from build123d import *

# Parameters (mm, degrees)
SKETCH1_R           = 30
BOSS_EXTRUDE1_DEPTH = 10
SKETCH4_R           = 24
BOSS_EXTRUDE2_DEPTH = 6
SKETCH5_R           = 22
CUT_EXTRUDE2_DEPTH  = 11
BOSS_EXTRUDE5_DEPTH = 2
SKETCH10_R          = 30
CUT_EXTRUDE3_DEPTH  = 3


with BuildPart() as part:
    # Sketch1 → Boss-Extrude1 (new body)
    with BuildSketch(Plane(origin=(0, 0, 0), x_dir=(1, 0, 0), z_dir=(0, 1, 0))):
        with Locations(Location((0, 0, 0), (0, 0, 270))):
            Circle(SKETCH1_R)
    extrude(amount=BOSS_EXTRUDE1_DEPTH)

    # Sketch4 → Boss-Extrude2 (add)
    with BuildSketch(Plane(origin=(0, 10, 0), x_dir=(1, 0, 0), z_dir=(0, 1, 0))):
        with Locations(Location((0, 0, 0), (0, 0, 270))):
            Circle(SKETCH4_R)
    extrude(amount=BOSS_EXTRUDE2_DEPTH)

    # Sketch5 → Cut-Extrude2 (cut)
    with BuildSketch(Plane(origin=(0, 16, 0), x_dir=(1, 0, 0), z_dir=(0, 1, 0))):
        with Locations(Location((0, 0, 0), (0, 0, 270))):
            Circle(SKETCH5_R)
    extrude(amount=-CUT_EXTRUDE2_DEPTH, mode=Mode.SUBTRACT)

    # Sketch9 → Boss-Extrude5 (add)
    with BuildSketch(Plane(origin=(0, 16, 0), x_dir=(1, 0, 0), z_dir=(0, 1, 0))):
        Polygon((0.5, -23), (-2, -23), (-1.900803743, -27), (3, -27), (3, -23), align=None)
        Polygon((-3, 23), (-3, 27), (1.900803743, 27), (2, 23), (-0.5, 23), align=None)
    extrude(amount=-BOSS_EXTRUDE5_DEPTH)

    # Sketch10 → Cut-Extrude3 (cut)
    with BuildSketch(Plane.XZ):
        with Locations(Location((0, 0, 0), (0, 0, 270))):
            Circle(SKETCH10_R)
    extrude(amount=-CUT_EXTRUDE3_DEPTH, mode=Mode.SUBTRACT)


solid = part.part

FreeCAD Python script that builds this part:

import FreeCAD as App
import Part
import Sketcher

doc = App.newDocument("Part")
body = doc.addObject("PartDesign::Body", "Body")

# Sketch on XZ plane
sketch1 = body.newObject("Sketcher::SketchObject", "Sketch")
sketch1.AttachmentSupport = (doc.getObject("XZ_Plane"), [""])
sketch1.MapMode = "FlatFace"
sketch1.addGeometry(Part.Circle(App.Vector(0, 0, 0), App.Vector(0, 0, 1), 30), False)
sketch1.addConstraint(Sketcher.Constraint("Coincident", 0, 3, -1, 1))
sketch1.addConstraint(Sketcher.Constraint("Diameter", 0, 60.0))
pad1 = body.newObject("PartDesign::Pad", "Pad")
pad1.Profile = sketch1
pad1.Length = 10
pad1.Reversed = True

# Sketch on XZ plane
sketch2 = body.newObject("Sketcher::SketchObject", "Sketch001")
sketch2.AttachmentSupport = (doc.getObject("XZ_Plane"), [""])
sketch2.MapMode = "FlatFace"
sketch2.AttachmentOffset = App.Placement(App.Vector(0, 0, -10), App.Rotation())
sketch2.addGeometry(Part.Circle(App.Vector(0, 0, 0), App.Vector(0, 0, 1), 24), False)
sketch2.addConstraint(Sketcher.Constraint("Coincident", 0, 3, -1, 1))
sketch2.addConstraint(Sketcher.Constraint("Diameter", 0, 48.0))
pad2 = body.newObject("PartDesign::Pad", "Pad001")
pad2.Profile = sketch2
pad2.Length = 6
pad2.Reversed = True

# Sketch on XZ plane
sketch3 = body.newObject("Sketcher::SketchObject", "Sketch002")
sketch3.AttachmentSupport = (doc.getObject("XZ_Plane"), [""])
sketch3.MapMode = "FlatFace"
sketch3.AttachmentOffset = App.Placement(App.Vector(0, 0, -16), App.Rotation())
sketch3.addGeometry(Part.Circle(App.Vector(0, 0, 0), App.Vector(0, 0, 1), 22), False)
sketch3.addConstraint(Sketcher.Constraint("Coincident", 0, 3, -1, 1))
sketch3.addConstraint(Sketcher.Constraint("Diameter", 0, 44.0))
pocket1 = body.newObject("PartDesign::Pocket", "Pocket")
pocket1.Profile = sketch3
pocket1.Length = 11
pocket1.Reversed = True

# Sketch on XZ plane
sketch4 = body.newObject("Sketcher::SketchObject", "Sketch003")
sketch4.AttachmentSupport = (doc.getObject("XZ_Plane"), [""])
sketch4.MapMode = "FlatFace"
sketch4.AttachmentOffset = App.Placement(App.Vector(0, 0, -16), App.Rotation())
sketch4.addGeometry(Part.LineSegment(App.Vector(-2, 23, 0), App.Vector(-1.9, 27, 0)), False)
sketch4.addGeometry(Part.LineSegment(App.Vector(-1.9, 27, 0), App.Vector(3, 27, 0)), False)
sketch4.addGeometry(Part.LineSegment(App.Vector(3, 27, 0), App.Vector(3, 23, 0)), False)
sketch4.addGeometry(Part.LineSegment(App.Vector(3, 23, 0), App.Vector(-2, 23, 0)), False)
sketch4.addGeometry(Part.LineSegment(App.Vector(-3, -27, 0), App.Vector(-3, -23, 0)), False)
sketch4.addGeometry(Part.LineSegment(App.Vector(-3, -23, 0), App.Vector(2, -23, 0)), False)
sketch4.addGeometry(Part.LineSegment(App.Vector(2, -23, 0), App.Vector(1.9, -27, 0)), False)
sketch4.addGeometry(Part.LineSegment(App.Vector(1.9, -27, 0), App.Vector(-3, -27, 0)), False)
sketch4.addConstraint(Sketcher.Constraint("Coincident", 0, 2, 1, 1))
sketch4.addConstraint(Sketcher.Constraint("Coincident", 1, 2, 2, 1))
sketch4.addConstraint(Sketcher.Constraint("Coincident", 2, 2, 3, 1))
sketch4.addConstraint(Sketcher.Constraint("Coincident", 3, 2, 0, 1))
sketch4.addConstraint(Sketcher.Constraint("Coincident", 4, 2, 5, 1))
sketch4.addConstraint(Sketcher.Constraint("Coincident", 5, 2, 6, 1))
sketch4.addConstraint(Sketcher.Constraint("Coincident", 6, 2, 7, 1))
sketch4.addConstraint(Sketcher.Constraint("Coincident", 7, 2, 4, 1))
sketch4.addConstraint(Sketcher.Constraint("Horizontal", 1))
sketch4.addConstraint(Sketcher.Constraint("Vertical", 2))
sketch4.addConstraint(Sketcher.Constraint("Horizontal", 3))
sketch4.addConstraint(Sketcher.Constraint("Vertical", 4))
sketch4.addConstraint(Sketcher.Constraint("Horizontal", 5))
sketch4.addConstraint(Sketcher.Constraint("Horizontal", 7))
sketch4.addConstraint(Sketcher.Constraint("Symmetric", 2, 2, 4, 2, -1, 1))
sketch4.addConstraint(Sketcher.Constraint("Symmetric", 0, 2, 6, 2, -1, 1))
sketch4.addConstraint(Sketcher.Constraint("Parallel", 0, 6))
sketch4.addConstraint(Sketcher.Constraint("DistanceX", 3, 2, 3, 1, 5.0))
sketch4.addConstraint(Sketcher.Constraint("DistanceY", 2, 2, 2, 1, 4.0))
sketch4.addConstraint(Sketcher.Constraint("DistanceY", -1, 1, 0, 2, 27.0))
sketch4.addConstraint(Sketcher.Constraint("DistanceX", -1, 1, 1, 2, 3.0))
sketch4.addConstraint(Sketcher.Constraint("Distance", 0, 4.00123))
pad3 = body.newObject("PartDesign::Pad", "Pad002")
pad3.Profile = sketch4
pad3.Length = 2

# Sketch on XZ plane
sketch5 = body.newObject("Sketcher::SketchObject", "Sketch004")
sketch5.AttachmentSupport = (doc.getObject("XZ_Plane"), [""])
sketch5.MapMode = "FlatFace"
sketch5.addGeometry(Part.Circle(App.Vector(0, 0, 0), App.Vector(0, 0, 1), 30), False)
sketch5.addConstraint(Sketcher.Constraint("Coincident", 0, 3, -1, 1))
sketch5.addConstraint(Sketcher.Constraint("Diameter", 0, 60.0))
pocket2 = body.newObject("PartDesign::Pocket", "Pocket001")
pocket2.Profile = sketch5
pocket2.Length = 3

doc.recompute()
